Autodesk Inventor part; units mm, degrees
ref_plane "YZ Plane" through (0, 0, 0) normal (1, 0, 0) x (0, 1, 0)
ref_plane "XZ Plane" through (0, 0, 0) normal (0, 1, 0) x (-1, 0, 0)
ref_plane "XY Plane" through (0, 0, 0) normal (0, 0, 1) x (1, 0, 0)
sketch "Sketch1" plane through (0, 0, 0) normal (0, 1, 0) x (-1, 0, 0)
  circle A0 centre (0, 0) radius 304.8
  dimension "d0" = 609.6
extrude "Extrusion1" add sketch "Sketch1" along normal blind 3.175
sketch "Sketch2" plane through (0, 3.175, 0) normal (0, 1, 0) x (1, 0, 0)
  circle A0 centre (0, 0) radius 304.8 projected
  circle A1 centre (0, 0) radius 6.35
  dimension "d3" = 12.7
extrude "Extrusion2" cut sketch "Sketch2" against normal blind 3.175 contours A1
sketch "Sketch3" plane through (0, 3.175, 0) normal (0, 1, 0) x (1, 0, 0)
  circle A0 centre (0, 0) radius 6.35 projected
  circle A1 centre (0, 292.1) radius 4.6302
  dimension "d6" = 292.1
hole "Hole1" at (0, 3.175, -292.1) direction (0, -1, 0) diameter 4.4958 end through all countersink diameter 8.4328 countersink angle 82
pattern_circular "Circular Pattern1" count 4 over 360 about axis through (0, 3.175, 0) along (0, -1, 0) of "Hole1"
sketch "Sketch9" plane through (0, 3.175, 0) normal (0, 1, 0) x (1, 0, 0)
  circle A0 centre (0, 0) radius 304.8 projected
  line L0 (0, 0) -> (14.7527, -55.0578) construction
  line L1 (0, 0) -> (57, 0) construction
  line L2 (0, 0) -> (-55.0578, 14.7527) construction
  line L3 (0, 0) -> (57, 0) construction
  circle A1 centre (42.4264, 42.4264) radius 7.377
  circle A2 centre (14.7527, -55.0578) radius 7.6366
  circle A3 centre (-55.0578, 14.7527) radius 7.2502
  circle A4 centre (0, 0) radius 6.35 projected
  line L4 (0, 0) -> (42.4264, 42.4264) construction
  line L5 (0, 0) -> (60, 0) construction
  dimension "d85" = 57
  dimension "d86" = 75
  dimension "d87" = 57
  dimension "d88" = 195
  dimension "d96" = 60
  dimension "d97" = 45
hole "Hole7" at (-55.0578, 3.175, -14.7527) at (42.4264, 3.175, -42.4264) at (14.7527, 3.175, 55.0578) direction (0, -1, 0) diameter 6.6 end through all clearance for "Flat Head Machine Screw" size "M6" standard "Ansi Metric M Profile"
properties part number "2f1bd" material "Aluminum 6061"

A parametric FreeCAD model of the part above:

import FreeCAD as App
import Part
import Sketcher
from FreeCAD import Vector
Q = App.Units.Quantity

doc = App.newDocument("Part")
body = doc.addObject("PartDesign::Body", "Body")

# Sketch on XZ plane
sketch1 = body.newObject("Sketcher::SketchObject", "Sketch")
sketch1.AttachmentSupport = (doc.getObject("XZ_Plane"), [""])
sketch1.MapMode = "FlatFace"
sketch1.addGeometry(Part.Circle(Vector(0, 0, 0), Vector(0, 0, 1), 304.8), False)
sketch1.addConstraint([
    Sketcher.Constraint("Coincident", 0, 3, -1, 1),
    Sketcher.Constraint("Diameter", 0, Q("24 in")),
])
pad1 = body.newObject("PartDesign::Pad", "Pad")
pad1.Profile = sketch1
pad1.Length = Q("0.125 in")
pad1.Reversed = True

# Sketch on XZ plane
sketch2 = body.newObject("Sketcher::SketchObject", "Sketch001")
sketch2.AttachmentSupport = (doc.getObject("XZ_Plane"), [""])
sketch2.MapMode = "FlatFace"
sketch2.AttachmentOffset = App.Placement(Vector(0, 0, -0.125 * 25.4), App.Rotation())
sketch2.addGeometry(Part.Circle(Vector(0, 0, 0), Vector(0, 0, 1), 6.35), False)
sketch2.addConstraint([
    Sketcher.Constraint("Coincident", 0, 3, -1, 1),
    Sketcher.Constraint("Diameter", 0, Q("0.5 in")),
])
pocket1 = body.newObject("PartDesign::Pocket", "Pocket")
pocket1.Profile = sketch2
pocket1.Length = Q("0.125 in")
pocket1.Reversed = True

# Sketch on XZ plane
sketch3 = body.newObject("Sketcher::SketchObject", "Sketch002")
sketch3.AttachmentSupport = (doc.getObject("XZ_Plane"), [""])
sketch3.MapMode = "FlatFace"
sketch3.AttachmentOffset = App.Placement(Vector(0, 0, -0.125 * 25.4), App.Rotation())
sketch3.addGeometry(Part.Circle(Vector(0, -292.1, 0), Vector(0, 0, 1), 2.2479), False)
sketch3.addConstraint([
    Sketcher.Constraint("PointOnObject", 0, 3, -2),
    Sketcher.Constraint("Diameter", 0, Q("0.177 in")),
    Sketcher.Constraint("DistanceY", 0, 3, -1, 1, Q("11.5 in")),
])
doc.recompute()
hole = body.newObject("PartDesign::Hole", "Hole")
hole.Profile = sketch3
hole.ThreadType = "None"
hole.Diameter = Q("0.177 in")
hole.DepthType = "ThroughAll"
hole.HoleCutType = "Countersink"
hole.HoleCutDiameter = Q("0.332 in")
hole.HoleCutCountersinkAngle = 82
hole.Reversed = True
doc.recompute()

polarpattern = body.newObject("PartDesign::PolarPattern", "PolarPattern")
polarpattern.Originals = [hole]
polarpattern.Axis = (doc.getObject("Y_Axis"), [""])
polarpattern.Angle = 360
polarpattern.Occurrences = 4
body.Tip = polarpattern

# Sketch on XZ plane
sketch4 = body.newObject("Sketcher::SketchObject", "Sketch003")
sketch4.AttachmentSupport = (doc.getObject("XZ_Plane"), [""])
sketch4.MapMode = "FlatFace"
sketch4.AttachmentOffset = App.Placement(Vector(0, 0, -0.125 * 25.4), App.Rotation())
sketch4.addGeometry([
    Part.Circle(Vector(-55.0578, -14.7527, 0), Vector(0, 0, 1), 3.3),
    Part.Circle(Vector(42.4264, -42.4264, 0), Vector(0, 0, 1), 3.3),
    Part.Circle(Vector(14.7527, 55.0578, 0), Vector(0, 0, 1), 3.3),
], False)
sketch4.addConstraint([
    Sketcher.Constraint("Equal", 0, 1),
    Sketcher.Constraint("Equal", 1, 2),
    Sketcher.Constraint("Diameter", 0, Q("6.6 mm")),
    Sketcher.Constraint("DistanceX", 0, 3, -1, 1, Q("55.0578 mm")),
    Sketcher.Constraint("DistanceY", 0, 3, -1, 1, Q("14.7527 mm")),
    Sketcher.Constraint("DistanceX", -1, 1, 1, 3, Q("42.4264 mm")),
    Sketcher.Constraint("DistanceY", 1, 3, -1, 1, Q("42.4264 mm")),
    Sketcher.Constraint("DistanceX", -1, 1, 2, 3, Q("14.7527 mm")),
    Sketcher.Constraint("DistanceY", -1, 1, 2, 3, Q("55.0578 mm")),
])
doc.recompute()
hole2 = body.newObject("PartDesign::Hole", "Hole001")
hole2.Profile = sketch4
hole2.ThreadType = "None"
hole2.Diameter = 6.6
hole2.DepthType = "ThroughAll"
hole2.Reversed = True

doc.recompute()
